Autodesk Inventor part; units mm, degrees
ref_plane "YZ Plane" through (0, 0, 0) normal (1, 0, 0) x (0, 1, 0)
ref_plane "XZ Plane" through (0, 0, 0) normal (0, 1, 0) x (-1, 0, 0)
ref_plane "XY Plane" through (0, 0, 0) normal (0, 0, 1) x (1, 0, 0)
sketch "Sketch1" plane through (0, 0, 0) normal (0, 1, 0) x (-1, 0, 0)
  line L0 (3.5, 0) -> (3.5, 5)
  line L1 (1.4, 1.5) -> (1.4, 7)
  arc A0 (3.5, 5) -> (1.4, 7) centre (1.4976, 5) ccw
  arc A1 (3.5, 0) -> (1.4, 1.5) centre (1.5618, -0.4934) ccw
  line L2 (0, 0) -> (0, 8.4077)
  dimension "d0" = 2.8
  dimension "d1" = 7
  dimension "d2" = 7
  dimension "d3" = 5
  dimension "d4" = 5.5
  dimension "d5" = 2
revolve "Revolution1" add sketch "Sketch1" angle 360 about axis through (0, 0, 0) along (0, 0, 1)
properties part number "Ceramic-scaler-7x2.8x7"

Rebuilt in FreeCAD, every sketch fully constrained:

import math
import FreeCAD as App
import Part
import Sketcher
from FreeCAD import Vector

doc = App.newDocument("Part")
body = doc.addObject("PartDesign::Body", "Body")

# Sketch on XZ plane
sketch1 = doc.addObject("Sketcher::SketchObject", "Sketch")
body.addObject(sketch1)
sketch1.AttachmentSupport = (doc.XZ_Plane, [""])
sketch1.MapMode = "FlatFace"
sketch1.addGeometry([
    Part.ArcOfCircle(Part.Circle(Vector(-1.6, -0.5, 0), Vector(0, 0, 1), 2), math.radians(85), math.radians(166)),
    Part.LineSegment(Vector(-3.5, 0, 0), Vector(-3.5, 5, 0)),
    Part.ArcOfCircle(Part.Circle(Vector(-1.5, 5, 0), Vector(0, 0, 1), 2), math.radians(87), math.radians(180)),
    Part.LineSegment(Vector(-1.4, 7, 0), Vector(-1.4, 1.5, 0)),
], False)
sketch1.addConstraint([
    Sketcher.Constraint("Coincident", 0, 2, 1, 1),
    Sketcher.Constraint("Tangent", 1, 2, 2, 2),
    Sketcher.Constraint("Coincident", 2, 1, 3, 1),
    Sketcher.Constraint("Coincident", 3, 2, 0, 1),
    Sketcher.Constraint("Vertical", 1),
    Sketcher.Constraint("Vertical", 3),
    Sketcher.Constraint("PointOnObject", 0, 2, -1),
    Sketcher.Constraint("Radius", 0, 2.0),
    Sketcher.Constraint("DistanceY", 1, 1, 1, 2, 5.0),
    Sketcher.Constraint("DistanceY", 3, 2, 3, 1, 5.5),
    Sketcher.Constraint("DistanceY", -1, 1, 2, 1, 7.0),
    Sketcher.Constraint("DistanceX", 0, 2, -1, 1, 3.5),
    Sketcher.Constraint("DistanceX", 2, 1, -1, 1, 1.4),
])
revolution = doc.addObject("PartDesign::Revolution", "Revolution")
body.addObject(revolution)
revolution.Profile = sketch1
revolution.ReferenceAxis = (sketch1, ["V_Axis"])
revolution.Angle = 360

doc.recompute()
